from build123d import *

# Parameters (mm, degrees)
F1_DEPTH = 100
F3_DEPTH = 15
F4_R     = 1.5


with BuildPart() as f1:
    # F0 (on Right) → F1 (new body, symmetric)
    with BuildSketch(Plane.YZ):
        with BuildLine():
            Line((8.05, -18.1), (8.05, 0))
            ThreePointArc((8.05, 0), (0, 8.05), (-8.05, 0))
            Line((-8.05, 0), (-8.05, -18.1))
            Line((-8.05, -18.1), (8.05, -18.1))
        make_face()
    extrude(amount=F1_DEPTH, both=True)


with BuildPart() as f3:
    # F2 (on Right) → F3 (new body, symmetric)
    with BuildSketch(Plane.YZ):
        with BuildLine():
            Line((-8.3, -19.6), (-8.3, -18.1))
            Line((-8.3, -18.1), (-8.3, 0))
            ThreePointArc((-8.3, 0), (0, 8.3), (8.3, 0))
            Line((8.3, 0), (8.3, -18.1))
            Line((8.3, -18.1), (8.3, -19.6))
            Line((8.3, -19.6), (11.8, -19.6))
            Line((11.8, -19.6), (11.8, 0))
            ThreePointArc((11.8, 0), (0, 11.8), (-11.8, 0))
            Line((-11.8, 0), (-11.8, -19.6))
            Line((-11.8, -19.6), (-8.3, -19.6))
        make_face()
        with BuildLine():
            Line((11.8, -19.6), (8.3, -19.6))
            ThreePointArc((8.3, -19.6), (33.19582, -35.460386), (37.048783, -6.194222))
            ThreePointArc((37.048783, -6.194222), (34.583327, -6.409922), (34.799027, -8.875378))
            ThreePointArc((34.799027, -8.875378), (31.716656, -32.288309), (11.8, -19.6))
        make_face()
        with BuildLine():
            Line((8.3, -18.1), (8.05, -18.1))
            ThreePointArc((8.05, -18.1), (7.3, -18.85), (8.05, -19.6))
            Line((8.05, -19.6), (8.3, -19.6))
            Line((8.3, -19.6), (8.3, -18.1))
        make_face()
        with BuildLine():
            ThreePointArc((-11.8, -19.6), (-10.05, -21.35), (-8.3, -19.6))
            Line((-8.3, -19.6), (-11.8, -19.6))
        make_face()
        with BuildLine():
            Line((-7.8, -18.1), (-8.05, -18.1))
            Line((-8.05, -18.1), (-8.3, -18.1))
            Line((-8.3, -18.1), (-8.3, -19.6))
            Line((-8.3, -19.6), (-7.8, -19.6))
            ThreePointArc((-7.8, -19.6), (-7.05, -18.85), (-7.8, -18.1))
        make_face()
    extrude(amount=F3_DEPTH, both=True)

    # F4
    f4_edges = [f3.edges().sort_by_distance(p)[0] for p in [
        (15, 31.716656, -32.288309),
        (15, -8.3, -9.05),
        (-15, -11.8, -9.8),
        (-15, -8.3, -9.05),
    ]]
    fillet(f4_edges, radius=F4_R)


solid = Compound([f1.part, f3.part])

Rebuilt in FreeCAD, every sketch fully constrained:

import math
import FreeCAD as App
import Part
import Sketcher

V = App.Vector


def edges_at(feature, points):
    """Names of the edges that pass closest to the given points."""
    edges = feature.Shape.Edges
    near = lambda p: min(range(len(edges)), key=lambda i: edges[i].distToShape(Part.Vertex(*p))[0])
    return sorted({f"Edge{near(p) + 1}" for p in points})

doc = App.newDocument("Part")
body = doc.addObject("PartDesign::Body", "Body")

sketch1 = doc.addObject("Sketcher::SketchObject", "Sketch")
body.addObject(sketch1)
sketch1.AttachmentSupport = (doc.YZ_Plane, [""])
sketch1.MapMode = "FlatFace"
sketch1.addGeometry(Part.LineSegment(V(8, -18, 0), V(8, 0, 0)), False)
sketch1.addGeometry(Part.ArcOfCircle(Part.Circle(V(0, 0, 0), V(0, 0, 1), 8), math.radians(0), math.radians(180)), False)
sketch1.addGeometry(Part.LineSegment(V(-8, 0, 0), V(-8, -18, 0)), False)
sketch1.addGeometry(Part.LineSegment(V(-8, -18, 0), V(8, -18, 0)), False)
sketch1.addConstraint(Sketcher.Constraint("Tangent", 0, 2, 1, 1))
sketch1.addConstraint(Sketcher.Constraint("Tangent", 1, 2, 2, 1))
sketch1.addConstraint(Sketcher.Constraint("Coincident", 2, 2, 3, 1))
sketch1.addConstraint(Sketcher.Constraint("Coincident", 3, 2, 0, 1))
sketch1.addConstraint(Sketcher.Constraint("Vertical", 0))
sketch1.addConstraint(Sketcher.Constraint("Vertical", 2))
sketch1.addConstraint(Sketcher.Constraint("Horizontal", 3))
sketch1.addConstraint(Sketcher.Constraint("Coincident", 1, 3, -1, 1))
sketch1.addConstraint(Sketcher.Constraint("Radius", 1, 8.05))
sketch1.addConstraint(Sketcher.Constraint("DistanceY", 0, 1, 0, 2, 18.1))
pad1 = doc.addObject("PartDesign::Pad", "Pad")
body.addObject(pad1)
pad1.Profile = sketch1
pad1.Length = 200
pad1.Midplane = True
body2 = doc.addObject("PartDesign::Body", "Body001")

sketch2 = doc.addObject("Sketcher::SketchObject", "Sketch001")
body2.addObject(sketch2)
sketch2.AttachmentSupport = (doc.getObject("YZ_Plane001"), [""])
sketch2.MapMode = "FlatFace"
sketch2.addGeometry(Part.LineSegment(V(-8.3, -18.1, 0), V(-8.3, 0, 0)), False)
sketch2.addGeometry(Part.ArcOfCircle(Part.Circle(V(0, 0, 0), V(0, 0, 1), 8.3), math.radians(0), math.radians(180)), False)
sketch2.addGeometry(Part.LineSegment(V(8.3, 0, 0), V(8.3, -18.1, 0)), False)
sketch2.addGeometry(Part.LineSegment(V(8.3, -18.1, 0), V(8.05, -18.1, 0)), False)
sketch2.addGeometry(Part.ArcOfCircle(Part.Circle(V(8.05, -18.85, 0), V(0, 0, 1), 0.75), math.radians(90), math.radians(270)), False)
sketch2.addGeometry(Part.LineSegment(V(8.05, -19.6, 0), V(8.3, -19.6, 0)), False)
sketch2.addGeometry(Part.ArcOfCircle(Part.Circle(V(25.8, -19.6, 0), V(0, 0, 1), 17.5), math.radians(-180), math.radians(50)), False)
sketch2.addGeometry(Part.ArcOfCircle(Part.Circle(V(35.92, -7.53, 0), V(0, 0, 1), 1.75), math.radians(50), math.radians(230)), False)
sketch2.addGeometry(Part.ArcOfCircle(Part.Circle(V(25.8, -19.6, 0), V(0, 0, 1), 14), math.radians(180), math.radians(410)), False)
sketch2.addGeometry(Part.LineSegment(V(11.8, -19.6, 0), V(11.8, 0, 0)), False)
sketch2.addGeometry(Part.ArcOfCircle(Part.Circle(V(0, 0, 0), V(0, 0, 1), 11.8), math.radians(0), math.radians(180)), False)
sketch2.addGeometry(Part.LineSegment(V(-11.8, 0, 0), V(-11.8, -19.6, 0)), False)
sketch2.addGeometry(Part.ArcOfCircle(Part.Circle(V(-10.05, -19.6, 0), V(0, 0, 1), 1.75), math.radians(180), math.radians(360)), False)
sketch2.addGeometry(Part.LineSegment(V(-8.3, -19.6, 0), V(-7.8, -19.6, 0)), False)
sketch2.addGeometry(Part.ArcOfCircle(Part.Circle(V(-7.8, -18.85, 0), V(0, 0, 1), 0.75), math.radians(-90), math.radians(90)), False)
sketch2.addGeometry(Part.LineSegment(V(-7.8, -18.1, 0), V(-8.3, -18.1, 0)), False)
sketch2.addConstraint(Sketcher.Constraint("Tangent", 0, 2, 1, 2))
sketch2.addConstraint(Sketcher.Constraint("Tangent", 1, 1, 2, 1))
sketch2.addConstraint(Sketcher.Constraint("Coincident", 2, 2, 3, 1))
sketch2.addConstraint(Sketcher.Constraint("Tangent", 3, 2, 4, 1))
sketch2.addConstraint(Sketcher.Constraint("Tangent", 4, 2, 5, 1))
sketch2.addConstraint(Sketcher.Constraint("Coincident", 5, 2, 6, 1))
sketch2.addConstraint(Sketcher.Constraint("Tangent", 6, 2, 7, 1))
sketch2.addConstraint(Sketcher.Constraint("Tangent", 7, 2, 8, 2))
sketch2.addConstraint(Sketcher.Constraint("Tangent", 8, 1, 9, 1))
sketch2.addConstraint(Sketcher.Constraint("Tangent", 9, 2, 10, 1))
sketch2.addConstraint(Sketcher.Constraint("Tangent", 10, 2, 11, 1))
sketch2.addConstraint(Sketcher.Constraint("Tangent", 11, 2, 12, 1))
sketch2.addConstraint(Sketcher.Constraint("Coincident", 12, 2, 13, 1))
sketch2.addConstraint(Sketcher.Constraint("Tangent", 13, 2, 14, 1))
sketch2.addConstraint(Sketcher.Constraint("Tangent", 14, 2, 15, 1))
sketch2.addConstraint(Sketcher.Constraint("Coincident", 15, 2, 0, 1))
sketch2.addConstraint(Sketcher.Constraint("Vertical", 0))
sketch2.addConstraint(Sketcher.Constraint("Vertical", 2))
sketch2.addConstraint(Sketcher.Constraint("Horizontal", 3))
sketch2.addConstraint(Sketcher.Constraint("Horizontal", 5))
sketch2.addConstraint(Sketcher.Constraint("Vertical", 9))
sketch2.addConstraint(Sketcher.Constraint("Vertical", 11))
sketch2.addConstraint(Sketcher.Constraint("Horizontal", 13))
sketch2.addConstraint(Sketcher.Constraint("Horizontal", 15))
sketch2.addConstraint(Sketcher.Constraint("Coincident", 1, 3, -1, 1))
sketch2.addConstraint(Sketcher.Constraint("Coincident", 10, 3, -1, 1))
sketch2.addConstraint(Sketcher.Constraint("Coincident", 8, 3, 6, 3))
sketch2.addConstraint(Sketcher.Constraint("Equal", 7, 12))
sketch2.addConstraint(Sketcher.Constraint("Equal", 4, 14))
sketch2.addConstraint(Sketcher.Constraint("Horizontal", 8, 3, 12, 3))
sketch2.addConstraint(Sketcher.Constraint("Horizontal", 4, 3, 14, 3))
sketch2.addConstraint(Sketcher.Constraint("Horizontal", 12, 3, 4, 2))
sketch2.addConstraint(Sketcher.Constraint("Vertical", 2, 2, 5, 2))
sketch2.addConstraint(Sketcher.Constraint("Radius", 8, 14.0))
sketch2.addConstraint(Sketcher.Constraint("Radius", 1, 8.3))
sketch2.addConstraint(Sketcher.Constraint("Radius", 6, 17.5))
sketch2.addConstraint(Sketcher.Constraint("Radius", 4, 0.75))
sketch2.addConstraint(Sketcher.Constraint("DistanceX", 13, 1, 13, 2, 0.5))
sketch2.addConstraint(Sketcher.Constraint("DistanceY", 0, 1, 0, 2, 18.1))
sketch2.addConstraint(Sketcher.Constraint("DistanceX", 3, 2, 3, 1, 0.25))
sketch2.addConstraint(Sketcher.Constraint("DistanceY", 7, 3, -1, 1, 7.5348))
pad2 = doc.addObject("PartDesign::Pad", "Pad001")
body2.addObject(pad2)
pad2.Profile = sketch2
pad2.Length = 30
pad2.Midplane = True
doc.recompute()

fillet = doc.addObject("PartDesign::Fillet", "Fillet")
body2.addObject(fillet)
fillet.Base = (pad2, edges_at(pad2, [
    (15, 31.717, -32.288),
    (15, -8.3, -9.05),
    (-15, -11.8, -9.8),
    (-15, -8.3, -9.05),
]))
fillet.Radius = 1.5

doc.recompute()
